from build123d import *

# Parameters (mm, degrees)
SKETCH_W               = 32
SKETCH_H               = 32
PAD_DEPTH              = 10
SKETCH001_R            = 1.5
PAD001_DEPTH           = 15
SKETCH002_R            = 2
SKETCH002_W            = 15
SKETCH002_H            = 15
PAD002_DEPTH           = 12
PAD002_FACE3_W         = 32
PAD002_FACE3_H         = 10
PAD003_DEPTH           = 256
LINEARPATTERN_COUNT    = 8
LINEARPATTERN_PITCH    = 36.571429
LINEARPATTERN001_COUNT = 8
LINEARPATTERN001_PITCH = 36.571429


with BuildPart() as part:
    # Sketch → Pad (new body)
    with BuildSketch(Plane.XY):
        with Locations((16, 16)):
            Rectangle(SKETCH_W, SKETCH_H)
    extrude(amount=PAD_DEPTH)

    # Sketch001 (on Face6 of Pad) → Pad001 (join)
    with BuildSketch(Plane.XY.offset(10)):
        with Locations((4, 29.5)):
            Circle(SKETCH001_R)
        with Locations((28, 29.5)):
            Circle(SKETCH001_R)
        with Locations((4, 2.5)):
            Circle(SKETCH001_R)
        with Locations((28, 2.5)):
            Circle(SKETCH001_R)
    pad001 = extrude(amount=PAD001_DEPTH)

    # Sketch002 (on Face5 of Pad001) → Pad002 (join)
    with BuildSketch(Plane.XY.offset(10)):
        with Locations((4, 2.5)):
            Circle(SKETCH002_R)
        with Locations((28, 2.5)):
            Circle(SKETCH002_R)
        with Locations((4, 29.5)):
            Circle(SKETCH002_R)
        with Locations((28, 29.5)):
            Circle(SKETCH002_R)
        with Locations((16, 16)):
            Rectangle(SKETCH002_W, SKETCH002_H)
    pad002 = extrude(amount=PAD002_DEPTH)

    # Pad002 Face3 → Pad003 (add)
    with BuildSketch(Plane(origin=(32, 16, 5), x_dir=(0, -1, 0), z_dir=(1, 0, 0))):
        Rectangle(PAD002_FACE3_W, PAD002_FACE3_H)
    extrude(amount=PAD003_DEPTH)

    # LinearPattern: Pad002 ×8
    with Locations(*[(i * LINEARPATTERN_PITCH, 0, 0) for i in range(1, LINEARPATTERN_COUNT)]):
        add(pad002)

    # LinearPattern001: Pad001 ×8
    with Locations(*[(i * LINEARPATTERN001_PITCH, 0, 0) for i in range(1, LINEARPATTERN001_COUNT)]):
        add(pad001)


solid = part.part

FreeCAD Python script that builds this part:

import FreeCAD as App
import Part
import Sketcher

V = App.Vector

doc = App.newDocument("Part")
body = doc.addObject("PartDesign::Body", "Body")

sketch1 = body.newObject("Sketcher::SketchObject", "Sketch")
sketch1.AttachmentSupport = (doc.getObject("XY_Plane"), [""])
sketch1.MapMode = "FlatFace"
sketch1.addGeometry(Part.LineSegment(V(0, 32, 0), V(0, 0, 0)), False)
sketch1.addGeometry(Part.LineSegment(V(0, 0, 0), V(32, 0, 0)), False)
sketch1.addGeometry(Part.LineSegment(V(32, 0, 0), V(32, 32, 0)), False)
sketch1.addGeometry(Part.LineSegment(V(32, 32, 0), V(0, 32, 0)), False)
sketch1.addConstraint(Sketcher.Constraint("Coincident", 0, 2, 1, 1))
sketch1.addConstraint(Sketcher.Constraint("Coincident", 1, 2, 2, 1))
sketch1.addConstraint(Sketcher.Constraint("Coincident", 2, 2, 3, 1))
sketch1.addConstraint(Sketcher.Constraint("Coincident", 3, 2, 0, 1))
sketch1.addConstraint(Sketcher.Constraint("Vertical", 0))
sketch1.addConstraint(Sketcher.Constraint("Horizontal", 1))
sketch1.addConstraint(Sketcher.Constraint("Vertical", 2))
sketch1.addConstraint(Sketcher.Constraint("Horizontal", 3))
sketch1.addConstraint(Sketcher.Constraint("Coincident", 0, 2, -1, 1))
sketch1.addConstraint(Sketcher.Constraint("Equal", 3, 0))
sketch1.addConstraint(Sketcher.Constraint("DistanceX", 1, 1, 1, 2, 32.0))
pad1 = body.newObject("PartDesign::Pad", "Pad")
pad1.Profile = sketch1
pad1.Length = 10

sketch2 = body.newObject("Sketcher::SketchObject", "Sketch001")
sketch2.AttachmentSupport = (doc.getObject("XY_Plane"), [""])
sketch2.MapMode = "FlatFace"
sketch2.AttachmentOffset = App.Placement(V(0, 0, 10), App.Rotation())
sketch2.addGeometry(Part.Circle(V(4, 29.5, 0), V(0, 0, 1), 1.5), False)
sketch2.addGeometry(Part.Circle(V(28, 29.5, 0), V(0, 0, 1), 1.5), False)
sketch2.addGeometry(Part.Circle(V(4, 2.5, 0), V(0, 0, 1), 1.5), False)
sketch2.addGeometry(Part.Circle(V(28, 2.5, 0), V(0, 0, 1), 1.5), False)
sketch2.addConstraint(Sketcher.Constraint("Equal", 0, 1))
sketch2.addConstraint(Sketcher.Constraint("Equal", 1, 2))
sketch2.addConstraint(Sketcher.Constraint("Equal", 2, 3))
sketch2.addConstraint(Sketcher.Constraint("Horizontal", 0, 3, 1, 3))
sketch2.addConstraint(Sketcher.Constraint("Horizontal", 2, 3, 3, 3))
sketch2.addConstraint(Sketcher.Constraint("Vertical", 0, 3, 2, 3))
sketch2.addConstraint(Sketcher.Constraint("Vertical", 1, 3, 3, 3))
sketch2.addConstraint(Sketcher.Constraint("Diameter", 0, 3.0))
sketch2.addConstraint(Sketcher.Constraint("DistanceX", -1, 1, 0, 3, 4.0))
sketch2.addConstraint(Sketcher.Constraint("DistanceX", -1, 1, 1, 3, 28.0))
sketch2.addConstraint(Sketcher.Constraint("DistanceY", 2, 3, 0, 3, 27.0))
sketch2.addConstraint(Sketcher.Constraint("DistanceY", -1, 1, 0, 3, 29.5))
pad2 = body.newObject("PartDesign::Pad", "Pad001")
pad2.Profile = sketch2
pad2.Length = 15

sketch3 = body.newObject("Sketcher::SketchObject", "Sketch002")
sketch3.AttachmentSupport = (doc.getObject("XY_Plane"), [""])
sketch3.MapMode = "FlatFace"
sketch3.AttachmentOffset = App.Placement(V(0, 0, 10), App.Rotation())
sketch3.addGeometry(Part.Circle(V(4, 2.5, 0), V(0, 0, 1), 2), False)
sketch3.addGeometry(Part.Circle(V(28, 2.5, 0), V(0, 0, 1), 2), False)
sketch3.addGeometry(Part.Circle(V(4, 29.5, 0), V(0, 0, 1), 2), False)
sketch3.addGeometry(Part.Circle(V(28, 29.5, 0), V(0, 0, 1), 2), False)
sketch3.addGeometry(Part.LineSegment(V(8.5, 23.5, 0), V(8.5, 8.5, 0)), False)
sketch3.addGeometry(Part.LineSegment(V(8.5, 8.5, 0), V(23.5, 8.5, 0)), False)
sketch3.addGeometry(Part.LineSegment(V(23.5, 8.5, 0), V(23.5, 23.5, 0)), False)
sketch3.addGeometry(Part.LineSegment(V(23.5, 23.5, 0), V(8.5, 23.5, 0)), False)
sketch3.addConstraint(Sketcher.Constraint("Coincident", 4, 2, 5, 1))
sketch3.addConstraint(Sketcher.Constraint("Coincident", 5, 2, 6, 1))
sketch3.addConstraint(Sketcher.Constraint("Coincident", 6, 2, 7, 1))
sketch3.addConstraint(Sketcher.Constraint("Coincident", 7, 2, 4, 1))
sketch3.addConstraint(Sketcher.Constraint("Vertical", 4))
sketch3.addConstraint(Sketcher.Constraint("Horizontal", 5))
sketch3.addConstraint(Sketcher.Constraint("Vertical", 6))
sketch3.addConstraint(Sketcher.Constraint("Horizontal", 7))
sketch3.addConstraint(Sketcher.Constraint("Equal", 0, 1))
sketch3.addConstraint(Sketcher.Constraint("Equal", 1, 2))
sketch3.addConstraint(Sketcher.Constraint("Equal", 2, 3))
sketch3.addConstraint(Sketcher.Constraint("Horizontal", 0, 3, 1, 3))
sketch3.addConstraint(Sketcher.Constraint("Horizontal", 2, 3, 3, 3))
sketch3.addConstraint(Sketcher.Constraint("Vertical", 0, 3, 2, 3))
sketch3.addConstraint(Sketcher.Constraint("Vertical", 1, 3, 3, 3))
sketch3.addConstraint(Sketcher.Constraint("Equal", 7, 4))
sketch3.addConstraint(Sketcher.Constraint("Diameter", 0, 4.0))
sketch3.addConstraint(Sketcher.Constraint("DistanceX", 5, 1, 5, 2, 15.0))
sketch3.addConstraint(Sketcher.Constraint("DistanceX", -1, 1, 0, 3, 4.0))
sketch3.addConstraint(Sketcher.Constraint("DistanceX", -1, 1, 1, 3, 28.0))
sketch3.addConstraint(Sketcher.Constraint("DistanceY", 0, 3, 2, 3, 27.0))
sketch3.addConstraint(Sketcher.Constraint("DistanceY", 0, 3, 4, 2, 6.0))
sketch3.addConstraint(Sketcher.Constraint("DistanceY", -1, 1, 0, 3, 2.5))
sketch3.addConstraint(Sketcher.Constraint("DistanceX", -1, 1, 4, 2, 8.5))
pad3 = body.newObject("PartDesign::Pad", "Pad002")
pad3.Profile = sketch3
pad3.Length = 12

sketch4 = body.newObject("Sketcher::SketchObject", "Sketch003")
sketch4.AttachmentSupport = (doc.getObject("YZ_Plane"), [""])
sketch4.MapMode = "FlatFace"
sketch4.AttachmentOffset = App.Placement(V(0, 0, 32), App.Rotation())
sketch4.addGeometry(Part.LineSegment(V(32, 0, 0), V(32, 10, 0)), False)
sketch4.addGeometry(Part.LineSegment(V(32, 10, 0), V(0, 10, 0)), False)
sketch4.addGeometry(Part.LineSegment(V(0, 10, 0), V(0, 0, 0)), False)
sketch4.addGeometry(Part.LineSegment(V(0, 0, 0), V(32, 0, 0)), False)
sketch4.addConstraint(Sketcher.Constraint("Coincident", 0, 2, 1, 1))
sketch4.addConstraint(Sketcher.Constraint("Coincident", 1, 2, 2, 1))
sketch4.addConstraint(Sketcher.Constraint("Coincident", 2, 2, 3, 1))
sketch4.addConstraint(Sketcher.Constraint("Coincident", 3, 2, 0, 1))
sketch4.addConstraint(Sketcher.Constraint("Vertical", 0))
sketch4.addConstraint(Sketcher.Constraint("Horizontal", 1))
sketch4.addConstraint(Sketcher.Constraint("Vertical", 2))
sketch4.addConstraint(Sketcher.Constraint("Horizontal", 3))
sketch4.addConstraint(Sketcher.Constraint("Coincident", 2, 2, -1, 1))
sketch4.addConstraint(Sketcher.Constraint("DistanceX", 1, 2, 1, 1, 32.0))
sketch4.addConstraint(Sketcher.Constraint("DistanceY", 0, 1, 0, 2, 10.0))
pad4 = body.newObject("PartDesign::Pad", "Pad003")
pad4.Profile = sketch4
pad4.Length = 256
doc.recompute()

linearpattern = body.newObject("PartDesign::LinearPattern", "LinearPattern")
linearpattern.Originals = [pad3]
linearpattern.Direction = (doc.getObject("X_Axis"), [""])
linearpattern.Mode = "offset"
linearpattern.Offset = 36.571429
linearpattern.Occurrences = 8
body.Tip = linearpattern
doc.recompute()

linearpattern2 = body.newObject("PartDesign::LinearPattern", "LinearPattern001")
linearpattern2.Originals = [pad2]
linearpattern2.Direction = (doc.getObject("X_Axis"), [""])
linearpattern2.Mode = "offset"
linearpattern2.Offset = 36.571429
linearpattern2.Occurrences = 8
body.Tip = linearpattern2

doc.recompute()
